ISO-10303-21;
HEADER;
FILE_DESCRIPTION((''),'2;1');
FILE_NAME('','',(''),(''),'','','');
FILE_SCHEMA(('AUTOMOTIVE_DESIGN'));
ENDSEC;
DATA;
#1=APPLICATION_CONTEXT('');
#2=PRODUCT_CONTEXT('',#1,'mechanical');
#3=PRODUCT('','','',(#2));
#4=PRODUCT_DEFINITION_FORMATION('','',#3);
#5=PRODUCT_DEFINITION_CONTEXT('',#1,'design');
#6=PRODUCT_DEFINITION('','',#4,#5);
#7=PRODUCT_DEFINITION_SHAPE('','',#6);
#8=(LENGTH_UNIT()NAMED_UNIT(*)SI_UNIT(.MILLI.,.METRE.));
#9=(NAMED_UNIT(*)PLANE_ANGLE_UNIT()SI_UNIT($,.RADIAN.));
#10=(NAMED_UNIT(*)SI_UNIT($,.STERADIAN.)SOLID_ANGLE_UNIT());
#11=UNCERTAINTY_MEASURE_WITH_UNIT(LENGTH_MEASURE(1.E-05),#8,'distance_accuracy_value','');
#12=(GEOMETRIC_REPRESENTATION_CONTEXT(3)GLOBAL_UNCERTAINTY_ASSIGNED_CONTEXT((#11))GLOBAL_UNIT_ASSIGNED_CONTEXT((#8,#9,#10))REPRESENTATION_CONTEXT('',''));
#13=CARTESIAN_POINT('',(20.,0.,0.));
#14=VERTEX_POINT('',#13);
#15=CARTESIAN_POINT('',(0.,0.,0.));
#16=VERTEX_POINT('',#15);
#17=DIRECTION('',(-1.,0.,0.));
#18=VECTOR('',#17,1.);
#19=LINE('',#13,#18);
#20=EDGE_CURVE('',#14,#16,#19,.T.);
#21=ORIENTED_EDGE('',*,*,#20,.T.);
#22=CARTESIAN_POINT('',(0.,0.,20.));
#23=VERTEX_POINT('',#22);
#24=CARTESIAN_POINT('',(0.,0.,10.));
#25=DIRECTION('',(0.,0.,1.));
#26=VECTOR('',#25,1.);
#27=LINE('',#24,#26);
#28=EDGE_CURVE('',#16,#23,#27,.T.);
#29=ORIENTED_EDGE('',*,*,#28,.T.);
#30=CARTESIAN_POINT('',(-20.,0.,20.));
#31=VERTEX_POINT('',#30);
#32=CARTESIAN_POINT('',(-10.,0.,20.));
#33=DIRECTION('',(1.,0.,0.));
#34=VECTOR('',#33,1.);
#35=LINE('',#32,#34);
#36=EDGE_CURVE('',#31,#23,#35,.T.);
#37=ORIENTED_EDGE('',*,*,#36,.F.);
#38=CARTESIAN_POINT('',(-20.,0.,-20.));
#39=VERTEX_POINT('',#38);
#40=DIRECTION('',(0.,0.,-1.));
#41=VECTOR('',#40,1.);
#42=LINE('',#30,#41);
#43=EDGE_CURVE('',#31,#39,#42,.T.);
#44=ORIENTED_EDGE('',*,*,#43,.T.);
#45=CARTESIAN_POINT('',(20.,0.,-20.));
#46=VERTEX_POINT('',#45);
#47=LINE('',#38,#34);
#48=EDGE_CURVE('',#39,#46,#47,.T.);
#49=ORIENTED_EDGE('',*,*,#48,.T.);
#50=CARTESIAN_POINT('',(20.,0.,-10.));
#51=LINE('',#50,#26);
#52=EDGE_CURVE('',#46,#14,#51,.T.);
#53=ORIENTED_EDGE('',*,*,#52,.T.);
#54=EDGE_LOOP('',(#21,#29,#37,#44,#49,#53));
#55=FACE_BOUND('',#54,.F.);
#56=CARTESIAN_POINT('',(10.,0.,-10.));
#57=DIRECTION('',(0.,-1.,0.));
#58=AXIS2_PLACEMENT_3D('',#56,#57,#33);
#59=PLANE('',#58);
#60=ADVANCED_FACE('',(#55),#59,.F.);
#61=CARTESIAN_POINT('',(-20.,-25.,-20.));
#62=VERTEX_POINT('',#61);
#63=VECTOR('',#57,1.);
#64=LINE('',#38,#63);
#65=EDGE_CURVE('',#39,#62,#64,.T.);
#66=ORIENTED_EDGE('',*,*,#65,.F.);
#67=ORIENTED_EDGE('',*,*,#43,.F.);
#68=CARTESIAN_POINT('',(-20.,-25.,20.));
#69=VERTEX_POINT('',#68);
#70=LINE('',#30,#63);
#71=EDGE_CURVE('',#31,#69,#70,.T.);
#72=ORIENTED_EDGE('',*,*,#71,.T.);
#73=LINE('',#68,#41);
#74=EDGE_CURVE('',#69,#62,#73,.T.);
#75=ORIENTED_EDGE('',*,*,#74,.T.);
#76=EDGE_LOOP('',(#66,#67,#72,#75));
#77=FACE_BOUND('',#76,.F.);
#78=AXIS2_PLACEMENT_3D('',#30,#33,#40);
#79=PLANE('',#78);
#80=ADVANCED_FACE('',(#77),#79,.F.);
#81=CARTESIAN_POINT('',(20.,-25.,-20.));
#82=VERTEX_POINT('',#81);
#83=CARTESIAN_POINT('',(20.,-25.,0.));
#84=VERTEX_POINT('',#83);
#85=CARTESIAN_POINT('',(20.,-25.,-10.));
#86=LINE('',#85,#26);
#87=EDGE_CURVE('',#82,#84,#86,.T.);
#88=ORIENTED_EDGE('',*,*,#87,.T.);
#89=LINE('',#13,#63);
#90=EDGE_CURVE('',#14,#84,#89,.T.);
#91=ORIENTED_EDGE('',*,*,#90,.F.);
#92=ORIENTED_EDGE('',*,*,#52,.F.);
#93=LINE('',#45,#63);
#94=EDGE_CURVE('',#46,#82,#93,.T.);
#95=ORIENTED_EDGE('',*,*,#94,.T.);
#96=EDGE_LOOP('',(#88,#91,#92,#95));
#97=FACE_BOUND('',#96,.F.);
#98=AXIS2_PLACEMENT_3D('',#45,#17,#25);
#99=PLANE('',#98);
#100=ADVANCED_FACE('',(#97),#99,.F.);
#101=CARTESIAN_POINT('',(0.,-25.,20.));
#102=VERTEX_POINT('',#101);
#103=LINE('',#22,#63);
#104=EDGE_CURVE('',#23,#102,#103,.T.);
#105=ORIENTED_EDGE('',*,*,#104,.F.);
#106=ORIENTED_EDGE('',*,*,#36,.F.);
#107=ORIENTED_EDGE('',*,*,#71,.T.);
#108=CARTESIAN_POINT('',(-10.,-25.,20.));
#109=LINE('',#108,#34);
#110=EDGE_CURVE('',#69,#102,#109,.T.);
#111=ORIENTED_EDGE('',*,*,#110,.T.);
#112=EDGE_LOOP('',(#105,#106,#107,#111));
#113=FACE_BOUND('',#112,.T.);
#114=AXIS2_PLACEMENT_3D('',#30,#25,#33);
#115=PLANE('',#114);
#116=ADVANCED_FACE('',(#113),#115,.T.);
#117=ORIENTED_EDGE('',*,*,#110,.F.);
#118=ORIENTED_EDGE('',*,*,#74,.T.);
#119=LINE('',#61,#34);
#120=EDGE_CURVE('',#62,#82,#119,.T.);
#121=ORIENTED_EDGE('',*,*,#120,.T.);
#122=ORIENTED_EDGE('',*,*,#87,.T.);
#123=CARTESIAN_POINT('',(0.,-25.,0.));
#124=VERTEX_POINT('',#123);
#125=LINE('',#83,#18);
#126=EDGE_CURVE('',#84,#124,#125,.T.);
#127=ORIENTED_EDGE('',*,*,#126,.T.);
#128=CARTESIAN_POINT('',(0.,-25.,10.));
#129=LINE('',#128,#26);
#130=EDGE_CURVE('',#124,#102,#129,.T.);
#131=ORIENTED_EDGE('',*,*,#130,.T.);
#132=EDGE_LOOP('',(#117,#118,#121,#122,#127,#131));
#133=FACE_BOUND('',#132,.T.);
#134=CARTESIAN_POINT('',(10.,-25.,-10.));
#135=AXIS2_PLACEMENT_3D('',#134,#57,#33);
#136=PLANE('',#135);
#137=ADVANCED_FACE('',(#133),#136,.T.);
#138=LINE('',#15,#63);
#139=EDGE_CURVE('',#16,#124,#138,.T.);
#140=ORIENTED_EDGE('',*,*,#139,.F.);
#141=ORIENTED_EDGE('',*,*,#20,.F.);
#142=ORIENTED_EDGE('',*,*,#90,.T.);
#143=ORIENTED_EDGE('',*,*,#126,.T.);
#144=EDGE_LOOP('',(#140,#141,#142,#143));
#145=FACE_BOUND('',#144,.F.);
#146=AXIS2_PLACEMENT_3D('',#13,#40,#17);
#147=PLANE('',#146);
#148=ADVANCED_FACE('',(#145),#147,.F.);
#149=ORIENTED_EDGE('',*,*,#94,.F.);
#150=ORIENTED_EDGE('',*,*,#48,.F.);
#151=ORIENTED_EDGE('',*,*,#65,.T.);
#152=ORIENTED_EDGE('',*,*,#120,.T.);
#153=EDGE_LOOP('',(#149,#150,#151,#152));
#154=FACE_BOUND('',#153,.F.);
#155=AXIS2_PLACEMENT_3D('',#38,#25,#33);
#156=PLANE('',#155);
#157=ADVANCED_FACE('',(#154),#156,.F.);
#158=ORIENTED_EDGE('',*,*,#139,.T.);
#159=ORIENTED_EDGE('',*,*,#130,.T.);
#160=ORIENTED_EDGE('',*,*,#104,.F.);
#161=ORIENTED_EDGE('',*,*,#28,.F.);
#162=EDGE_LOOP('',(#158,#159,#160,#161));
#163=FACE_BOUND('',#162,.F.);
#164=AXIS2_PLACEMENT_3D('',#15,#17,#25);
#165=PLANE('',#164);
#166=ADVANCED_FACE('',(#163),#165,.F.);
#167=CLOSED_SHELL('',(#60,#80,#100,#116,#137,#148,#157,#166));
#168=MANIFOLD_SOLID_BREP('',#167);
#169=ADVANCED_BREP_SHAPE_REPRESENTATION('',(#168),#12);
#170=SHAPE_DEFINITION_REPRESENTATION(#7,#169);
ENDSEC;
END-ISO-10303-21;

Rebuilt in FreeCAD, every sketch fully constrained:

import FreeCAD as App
import Part
import Sketcher

V = App.Vector


def add_polygon(sketch, points):
    """Adds a closed chain of lines whose ends are joined by coincident constraints."""
    first, n = sketch.GeometryCount, len(points)
    for a, b in zip(points, points[1:] + points[:1]):
        sketch.addGeometry(Part.LineSegment(App.Vector(*a, 0), App.Vector(*b, 0)), False)
    for i in range(n):
        sketch.addConstraint(Sketcher.Constraint("Coincident", first + i, 2, first + (i + 1) % n, 1))

doc = App.newDocument("Part")
body = doc.addObject("PartDesign::Body", "Body")

# Sketch on XZ plane
sketch1 = body.newObject("Sketcher::SketchObject", "Sketch")
sketch1.AttachmentSupport = (doc.getObject("XZ_Plane"), [""])
sketch1.MapMode = "FlatFace"
add_polygon(sketch1, [(20, -20), (20, 0), (0, 0), (0, 20), (-20, 20), (-20, -20)])  # lines 0-5
sketch1.addConstraint([
    Sketcher.Constraint("Vertical", 0),
    Sketcher.Constraint("Horizontal", 1),
    Sketcher.Constraint("Vertical", 2),
    Sketcher.Constraint("Horizontal", 3),
    Sketcher.Constraint("Vertical", 4),
    Sketcher.Constraint("Horizontal", 5),
    Sketcher.Constraint("Coincident", 1, 2, -1, 1),
    Sketcher.Constraint("Symmetric", 3, 2, 5, 2, -1, 1),
    Sketcher.Constraint("Equal", 3, 0),
    Sketcher.Constraint("DistanceX", 1, 2, 1, 1, 20.0),
])
pad1 = body.newObject("PartDesign::Pad", "Pad")
pad1.Profile = sketch1
pad1.Length = 25

doc.recompute()
